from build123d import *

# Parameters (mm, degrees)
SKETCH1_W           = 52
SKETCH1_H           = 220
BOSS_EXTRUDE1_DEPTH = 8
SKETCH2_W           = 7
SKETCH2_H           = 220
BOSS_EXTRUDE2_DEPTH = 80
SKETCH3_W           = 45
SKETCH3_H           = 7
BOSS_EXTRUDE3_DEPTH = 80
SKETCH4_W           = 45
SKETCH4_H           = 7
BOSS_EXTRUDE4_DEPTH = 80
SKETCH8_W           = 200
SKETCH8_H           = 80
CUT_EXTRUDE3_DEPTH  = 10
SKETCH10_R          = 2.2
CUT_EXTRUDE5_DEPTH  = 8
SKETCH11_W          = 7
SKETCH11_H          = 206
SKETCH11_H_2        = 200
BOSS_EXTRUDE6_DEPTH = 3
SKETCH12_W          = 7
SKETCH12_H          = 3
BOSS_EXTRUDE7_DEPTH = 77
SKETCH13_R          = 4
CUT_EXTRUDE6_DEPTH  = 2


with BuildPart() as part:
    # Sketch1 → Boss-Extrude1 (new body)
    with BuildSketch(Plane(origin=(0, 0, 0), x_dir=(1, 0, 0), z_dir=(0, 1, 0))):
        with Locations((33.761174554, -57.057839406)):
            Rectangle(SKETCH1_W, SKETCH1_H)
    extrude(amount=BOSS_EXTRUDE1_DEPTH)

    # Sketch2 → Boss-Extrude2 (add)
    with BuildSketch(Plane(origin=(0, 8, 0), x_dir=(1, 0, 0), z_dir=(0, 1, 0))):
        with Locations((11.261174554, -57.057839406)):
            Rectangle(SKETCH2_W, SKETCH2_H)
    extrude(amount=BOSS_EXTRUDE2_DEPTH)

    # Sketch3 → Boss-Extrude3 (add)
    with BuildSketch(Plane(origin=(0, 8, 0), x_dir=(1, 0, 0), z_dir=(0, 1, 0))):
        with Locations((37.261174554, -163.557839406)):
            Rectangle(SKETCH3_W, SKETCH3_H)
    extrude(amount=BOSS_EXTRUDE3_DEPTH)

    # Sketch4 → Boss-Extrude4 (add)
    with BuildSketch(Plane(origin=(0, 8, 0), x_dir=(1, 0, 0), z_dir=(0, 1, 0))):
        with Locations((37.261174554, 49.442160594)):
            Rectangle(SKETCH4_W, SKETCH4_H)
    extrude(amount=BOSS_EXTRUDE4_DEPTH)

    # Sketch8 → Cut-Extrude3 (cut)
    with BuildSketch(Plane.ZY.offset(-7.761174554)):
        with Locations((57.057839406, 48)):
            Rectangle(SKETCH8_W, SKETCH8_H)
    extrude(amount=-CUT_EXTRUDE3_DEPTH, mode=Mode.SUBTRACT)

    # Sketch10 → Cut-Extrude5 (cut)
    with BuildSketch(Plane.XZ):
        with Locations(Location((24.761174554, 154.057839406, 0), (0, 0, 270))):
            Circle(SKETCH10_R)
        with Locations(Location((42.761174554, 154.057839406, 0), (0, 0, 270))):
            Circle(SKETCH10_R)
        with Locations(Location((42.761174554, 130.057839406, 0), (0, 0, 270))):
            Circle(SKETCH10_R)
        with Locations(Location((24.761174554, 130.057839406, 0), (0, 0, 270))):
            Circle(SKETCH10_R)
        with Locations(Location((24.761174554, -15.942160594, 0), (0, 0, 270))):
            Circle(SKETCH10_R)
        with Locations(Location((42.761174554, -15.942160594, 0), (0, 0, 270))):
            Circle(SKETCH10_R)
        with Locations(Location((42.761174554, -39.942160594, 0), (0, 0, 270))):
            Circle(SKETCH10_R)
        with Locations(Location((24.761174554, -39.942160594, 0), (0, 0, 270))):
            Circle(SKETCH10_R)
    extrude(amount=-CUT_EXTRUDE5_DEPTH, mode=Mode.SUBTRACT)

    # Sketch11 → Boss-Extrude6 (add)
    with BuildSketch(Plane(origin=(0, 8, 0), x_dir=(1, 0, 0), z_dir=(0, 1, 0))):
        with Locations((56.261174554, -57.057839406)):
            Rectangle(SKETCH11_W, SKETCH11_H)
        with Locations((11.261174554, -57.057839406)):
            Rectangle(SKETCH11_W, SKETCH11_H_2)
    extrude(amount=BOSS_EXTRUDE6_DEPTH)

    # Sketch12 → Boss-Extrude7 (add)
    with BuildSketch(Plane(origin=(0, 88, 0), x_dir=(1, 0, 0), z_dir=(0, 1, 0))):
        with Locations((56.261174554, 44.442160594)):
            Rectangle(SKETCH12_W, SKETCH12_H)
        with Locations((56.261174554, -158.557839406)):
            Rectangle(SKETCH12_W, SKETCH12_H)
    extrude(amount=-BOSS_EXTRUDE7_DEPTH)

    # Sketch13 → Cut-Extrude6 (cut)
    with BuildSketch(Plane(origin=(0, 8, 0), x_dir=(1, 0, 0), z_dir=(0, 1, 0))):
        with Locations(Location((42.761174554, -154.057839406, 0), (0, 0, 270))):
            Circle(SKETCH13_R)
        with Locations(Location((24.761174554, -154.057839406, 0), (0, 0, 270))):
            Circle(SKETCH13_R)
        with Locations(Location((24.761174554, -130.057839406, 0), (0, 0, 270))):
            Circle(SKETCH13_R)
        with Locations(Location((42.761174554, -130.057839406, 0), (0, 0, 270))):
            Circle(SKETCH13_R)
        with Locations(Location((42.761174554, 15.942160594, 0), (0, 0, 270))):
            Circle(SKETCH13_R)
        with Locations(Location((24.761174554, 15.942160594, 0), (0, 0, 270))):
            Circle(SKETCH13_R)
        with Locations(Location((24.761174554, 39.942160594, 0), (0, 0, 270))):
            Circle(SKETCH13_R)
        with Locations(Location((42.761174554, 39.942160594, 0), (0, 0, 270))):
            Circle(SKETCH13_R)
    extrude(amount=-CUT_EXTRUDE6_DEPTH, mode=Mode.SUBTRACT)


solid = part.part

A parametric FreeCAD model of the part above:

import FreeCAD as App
import Part
import Sketcher

V = App.Vector

doc = App.newDocument("Part")
body = doc.addObject("PartDesign::Body", "Body")

sketch1 = body.newObject("Sketcher::SketchObject", "Sketch")
sketch1.AttachmentSupport = (doc.getObject("XZ_Plane"), [""])
sketch1.MapMode = "FlatFace"
sketch1.addGeometry(Part.LineSegment(V(8, -53, 0), V(8, 167, 0)), False)
sketch1.addGeometry(Part.LineSegment(V(8, 167, 0), V(60, 167, 0)), False)
sketch1.addGeometry(Part.LineSegment(V(60, 167, 0), V(60, -53, 0)), False)
sketch1.addGeometry(Part.LineSegment(V(60, -53, 0), V(8, -53, 0)), False)
sketch1.addConstraint(Sketcher.Constraint("Coincident", 0, 2, 1, 1))
sketch1.addConstraint(Sketcher.Constraint("Coincident", 1, 2, 2, 1))
sketch1.addConstraint(Sketcher.Constraint("Coincident", 2, 2, 3, 1))
sketch1.addConstraint(Sketcher.Constraint("Coincident", 3, 2, 0, 1))
sketch1.addConstraint(Sketcher.Constraint("Vertical", 0))
sketch1.addConstraint(Sketcher.Constraint("Horizontal", 1))
sketch1.addConstraint(Sketcher.Constraint("Vertical", 2))
sketch1.addConstraint(Sketcher.Constraint("Horizontal", 3))
sketch1.addConstraint(Sketcher.Constraint("DistanceX", 1, 1, 1, 2, 52.0))
sketch1.addConstraint(Sketcher.Constraint("DistanceY", 0, 1, 0, 2, 220.0))
sketch1.addConstraint(Sketcher.Constraint("DistanceY", -1, 1, 0, 2, 167.057839))
sketch1.addConstraint(Sketcher.Constraint("DistanceX", -1, 1, 0, 2, 7.761175))
pad1 = body.newObject("PartDesign::Pad", "Pad")
pad1.Profile = sketch1
pad1.Length = 8
pad1.Reversed = True

sketch2 = body.newObject("Sketcher::SketchObject", "Sketch001")
sketch2.AttachmentSupport = (doc.getObject("XZ_Plane"), [""])
sketch2.MapMode = "FlatFace"
sketch2.AttachmentOffset = App.Placement(V(0, 0, -8), App.Rotation())
sketch2.addGeometry(Part.LineSegment(V(8, -53, 0), V(8, 167, 0)), False)
sketch2.addGeometry(Part.LineSegment(V(8, 167, 0), V(15, 167, 0)), False)
sketch2.addGeometry(Part.LineSegment(V(15, 167, 0), V(15, -53, 0)), False)
sketch2.addGeometry(Part.LineSegment(V(15, -53, 0), V(8, -53, 0)), False)
sketch2.addConstraint(Sketcher.Constraint("Coincident", 0, 2, 1, 1))
sketch2.addConstraint(Sketcher.Constraint("Coincident", 1, 2, 2, 1))
sketch2.addConstraint(Sketcher.Constraint("Coincident", 2, 2, 3, 1))
sketch2.addConstraint(Sketcher.Constraint("Coincident", 3, 2, 0, 1))
sketch2.addConstraint(Sketcher.Constraint("Vertical", 0))
sketch2.addConstraint(Sketcher.Constraint("Horizontal", 1))
sketch2.addConstraint(Sketcher.Constraint("Vertical", 2))
sketch2.addConstraint(Sketcher.Constraint("Horizontal", 3))
sketch2.addConstraint(Sketcher.Constraint("DistanceX", 1, 1, 1, 2, 7.0))
sketch2.addConstraint(Sketcher.Constraint("DistanceY", 0, 1, 0, 2, 220.0))
sketch2.addConstraint(Sketcher.Constraint("DistanceY", -1, 1, 0, 2, 167.057839))
sketch2.addConstraint(Sketcher.Constraint("DistanceX", -1, 1, 0, 2, 7.761175))
pad2 = body.newObject("PartDesign::Pad", "Pad001")
pad2.Profile = sketch2
pad2.Length = 80
pad2.Reversed = True

sketch3 = body.newObject("Sketcher::SketchObject", "Sketch002")
sketch3.AttachmentSupport = (doc.getObject("XZ_Plane"), [""])
sketch3.MapMode = "FlatFace"
sketch3.AttachmentOffset = App.Placement(V(0, 0, -8), App.Rotation())
sketch3.addGeometry(Part.LineSegment(V(15, 160, 0), V(15, 167, 0)), False)
sketch3.addGeometry(Part.LineSegment(V(15, 167, 0), V(60, 167, 0)), False)
sketch3.addGeometry(Part.LineSegment(V(60, 167, 0), V(60, 160, 0)), False)
sketch3.addGeometry(Part.LineSegment(V(60, 160, 0), V(15, 160, 0)), False)
sketch3.addConstraint(Sketcher.Constraint("Coincident", 0, 2, 1, 1))
sketch3.addConstraint(Sketcher.Constraint("Coincident", 1, 2, 2, 1))
sketch3.addConstraint(Sketcher.Constraint("Coincident", 2, 2, 3, 1))
sketch3.addConstraint(Sketcher.Constraint("Coincident", 3, 2, 0, 1))
sketch3.addConstraint(Sketcher.Constraint("Vertical", 0))
sketch3.addConstraint(Sketcher.Constraint("Horizontal", 1))
sketch3.addConstraint(Sketcher.Constraint("Vertical", 2))
sketch3.addConstraint(Sketcher.Constraint("Horizontal", 3))
sketch3.addConstraint(Sketcher.Constraint("DistanceX", 1, 1, 1, 2, 45.0))
sketch3.addConstraint(Sketcher.Constraint("DistanceY", 0, 1, 0, 2, 7.0))
sketch3.addConstraint(Sketcher.Constraint("DistanceY", -1, 1, 0, 2, 167.057839))
sketch3.addConstraint(Sketcher.Constraint("DistanceX", -1, 1, 0, 2, 14.761175))
pad3 = body.newObject("PartDesign::Pad", "Pad002")
pad3.Profile = sketch3
pad3.Length = 80
pad3.Reversed = True

sketch4 = body.newObject("Sketcher::SketchObject", "Sketch003")
sketch4.AttachmentSupport = (doc.getObject("XZ_Plane"), [""])
sketch4.MapMode = "FlatFace"
sketch4.AttachmentOffset = App.Placement(V(0, 0, -8), App.Rotation())
sketch4.addGeometry(Part.LineSegment(V(15, -53, 0), V(15, -46, 0)), False)
sketch4.addGeometry(Part.LineSegment(V(15, -46, 0), V(60, -46, 0)), False)
sketch4.addGeometry(Part.LineSegment(V(60, -46, 0), V(60, -53, 0)), False)
sketch4.addGeometry(Part.LineSegment(V(60, -53, 0), V(15, -53, 0)), False)
sketch4.addConstraint(Sketcher.Constraint("Coincident", 0, 2, 1, 1))
sketch4.addConstraint(Sketcher.Constraint("Coincident", 1, 2, 2, 1))
sketch4.addConstraint(Sketcher.Constraint("Coincident", 2, 2, 3, 1))
sketch4.addConstraint(Sketcher.Constraint("Coincident", 3, 2, 0, 1))
sketch4.addConstraint(Sketcher.Constraint("Vertical", 0))
sketch4.addConstraint(Sketcher.Constraint("Horizontal", 1))
sketch4.addConstraint(Sketcher.Constraint("Vertical", 2))
sketch4.addConstraint(Sketcher.Constraint("Horizontal", 3))
sketch4.addConstraint(Sketcher.Constraint("DistanceX", 1, 1, 1, 2, 45.0))
sketch4.addConstraint(Sketcher.Constraint("DistanceY", 0, 1, 0, 2, 7.0))
sketch4.addConstraint(Sketcher.Constraint("DistanceY", 0, 2, -1, 1, 45.942161))
sketch4.addConstraint(Sketcher.Constraint("DistanceX", -1, 1, 0, 2, 14.761175))
pad4 = body.newObject("PartDesign::Pad", "Pad003")
pad4.Profile = sketch4
pad4.Length = 80
pad4.Reversed = True

sketch5 = body.newObject("Sketcher::SketchObject", "Sketch004")
sketch5.AttachmentSupport = (doc.getObject("YZ_Plane"), [""])
sketch5.MapMode = "FlatFace"
sketch5.AttachmentOffset = App.Placement(V(0, 0, 7.761175), App.Rotation())
sketch5.addGeometry(Part.LineSegment(V(88, -43, 0), V(8, -43, 0)), False)
sketch5.addGeometry(Part.LineSegment(V(8, -43, 0), V(8, 157, 0)), False)
sketch5.addGeometry(Part.LineSegment(V(8, 157, 0), V(88, 157, 0)), False)
sketch5.addGeometry(Part.LineSegment(V(88, 157, 0), V(88, -43, 0)), False)
sketch5.addConstraint(Sketcher.Constraint("Coincident", 0, 2, 1, 1))
sketch5.addConstraint(Sketcher.Constraint("Coincident", 1, 2, 2, 1))
sketch5.addConstraint(Sketcher.Constraint("Coincident", 2, 2, 3, 1))
sketch5.addConstraint(Sketcher.Constraint("Coincident", 3, 2, 0, 1))
sketch5.addConstraint(Sketcher.Constraint("Horizontal", 0))
sketch5.addConstraint(Sketcher.Constraint("Vertical", 1))
sketch5.addConstraint(Sketcher.Constraint("Horizontal", 2))
sketch5.addConstraint(Sketcher.Constraint("Vertical", 3))
sketch5.addConstraint(Sketcher.Constraint("DistanceX", 0, 2, 0, 1, 80.0))
sketch5.addConstraint(Sketcher.Constraint("DistanceY", 1, 1, 1, 2, 200.0))
sketch5.addConstraint(Sketcher.Constraint("DistanceX", -1, 1, 0, 2, 8.0))
sketch5.addConstraint(Sketcher.Constraint("DistanceY", 0, 2, -1, 1, 42.942161))
pocket1 = body.newObject("PartDesign::Pocket", "Pocket")
pocket1.Profile = sketch5
pocket1.Length = 10
pocket1.Reversed = True

sketch6 = body.newObject("Sketcher::SketchObject", "Sketch005")
sketch6.AttachmentSupport = (doc.getObject("XZ_Plane"), [""])
sketch6.MapMode = "FlatFace"
sketch6.addGeometry(Part.Circle(V(24.8, 154.1, 0), V(0, 0, 1), 2.2), False)
sketch6.addGeometry(Part.Circle(V(42.8, 154.1, 0), V(0, 0, 1), 2.2), False)
sketch6.addGeometry(Part.Circle(V(42.8, 130.1, 0), V(0, 0, 1), 2.2), False)
sketch6.addGeometry(Part.Circle(V(24.8, 130.1, 0), V(0, 0, 1), 2.2), False)
sketch6.addGeometry(Part.Circle(V(24.8, -15.9, 0), V(0, 0, 1), 2.2), False)
sketch6.addGeometry(Part.Circle(V(42.8, -15.9, 0), V(0, 0, 1), 2.2), False)
sketch6.addGeometry(Part.Circle(V(42.8, -39.9, 0), V(0, 0, 1), 2.2), False)
sketch6.addGeometry(Part.Circle(V(24.8, -39.9, 0), V(0, 0, 1), 2.2), False)
sketch6.addConstraint(Sketcher.Constraint("Equal", 0, 1))
sketch6.addConstraint(Sketcher.Constraint("Equal", 1, 2))
sketch6.addConstraint(Sketcher.Constraint("Equal", 2, 3))
sketch6.addConstraint(Sketcher.Constraint("Equal", 3, 4))
sketch6.addConstraint(Sketcher.Constraint("Equal", 4, 5))
sketch6.addConstraint(Sketcher.Constraint("Equal", 5, 6))
sketch6.addConstraint(Sketcher.Constraint("Equal", 6, 7))
sketch6.addConstraint(Sketcher.Constraint("Horizontal", 0, 3, 1, 3))
sketch6.addConstraint(Sketcher.Constraint("Horizontal", 2, 3, 3, 3))
sketch6.addConstraint(Sketcher.Constraint("Horizontal", 4, 3, 5, 3))
sketch6.addConstraint(Sketcher.Constraint("Horizontal", 6, 3, 7, 3))
sketch6.addConstraint(Sketcher.Constraint("Vertical", 1, 3, 2, 3))
sketch6.addConstraint(Sketcher.Constraint("Vertical", 0, 3, 3, 3))
sketch6.addConstraint(Sketcher.Constraint("Vertical", 3, 3, 4, 3))
sketch6.addConstraint(Sketcher.Constraint("Vertical", 2, 3, 5, 3))
sketch6.addConstraint(Sketcher.Constraint("Vertical", 5, 3, 6, 3))
sketch6.addConstraint(Sketcher.Constraint("Vertical", 4, 3, 7, 3))
sketch6.addConstraint(Sketcher.Constraint("Diameter", 0, 4.4))
sketch6.addConstraint(Sketcher.Constraint("DistanceX", 0, 3, 1, 3, 18.0))
sketch6.addConstraint(Sketcher.Constraint("DistanceY", 2, 3, 1, 3, 24.0))
sketch6.addConstraint(Sketcher.Constraint("DistanceY", 4, 3, 3, 3, 146.0))
sketch6.addConstraint(Sketcher.Constraint("DistanceY", 6, 3, 5, 3, 24.0))
sketch6.addConstraint(Sketcher.Constraint("DistanceY", -1, 1, 0, 3, 154.057839))
sketch6.addConstraint(Sketcher.Constraint("DistanceX", -1, 1, 0, 3, 24.761175))
pocket2 = body.newObject("PartDesign::Pocket", "Pocket001")
pocket2.Profile = sketch6
pocket2.Length = 8

sketch7 = body.newObject("Sketcher::SketchObject", "Sketch006")
sketch7.AttachmentSupport = (doc.getObject("XZ_Plane"), [""])
sketch7.MapMode = "FlatFace"
sketch7.AttachmentOffset = App.Placement(V(0, 0, -8), App.Rotation())
sketch7.addGeometry(Part.LineSegment(V(53, -46, 0), V(53, 160, 0)), False)
sketch7.addGeometry(Part.LineSegment(V(53, 160, 0), V(60, 160, 0)), False)
sketch7.addGeometry(Part.LineSegment(V(60, 160, 0), V(60, -46, 0)), False)
sketch7.addGeometry(Part.LineSegment(V(60, -46, 0), V(53, -46, 0)), False)
sketch7.addGeometry(Part.LineSegment(V(8, -43, 0), V(8, 157, 0)), False)
sketch7.addGeometry(Part.LineSegment(V(8, 157, 0), V(15, 157, 0)), False)
sketch7.addGeometry(Part.LineSegment(V(15, 157, 0), V(15, -43, 0)), False)
sketch7.addGeometry(Part.LineSegment(V(15, -43, 0), V(8, -43, 0)), False)
sketch7.addConstraint(Sketcher.Constraint("Coincident", 0, 2, 1, 1))
sketch7.addConstraint(Sketcher.Constraint("Coincident", 1, 2, 2, 1))
sketch7.addConstraint(Sketcher.Constraint("Coincident", 2, 2, 3, 1))
sketch7.addConstraint(Sketcher.Constraint("Coincident", 3, 2, 0, 1))
sketch7.addConstraint(Sketcher.Constraint("Coincident", 4, 2, 5, 1))
sketch7.addConstraint(Sketcher.Constraint("Coincident", 5, 2, 6, 1))
sketch7.addConstraint(Sketcher.Constraint("Coincident", 6, 2, 7, 1))
sketch7.addConstraint(Sketcher.Constraint("Coincident", 7, 2, 4, 1))
sketch7.addConstraint(Sketcher.Constraint("Vertical", 0))
sketch7.addConstraint(Sketcher.Constraint("Horizontal", 1))
sketch7.addConstraint(Sketcher.Constraint("Vertical", 2))
sketch7.addConstraint(Sketcher.Constraint("Horizontal", 3))
sketch7.addConstraint(Sketcher.Constraint("Vertical", 4))
sketch7.addConstraint(Sketcher.Constraint("Horizontal", 5))
sketch7.addConstraint(Sketcher.Constraint("Vertical", 6))
sketch7.addConstraint(Sketcher.Constraint("Horizontal", 7))
sketch7.addConstraint(Sketcher.Constraint("Equal", 3, 5))
sketch7.addConstraint(Sketcher.Constraint("DistanceX", 1, 1, 1, 2, 7.0))
sketch7.addConstraint(Sketcher.Constraint("DistanceY", 0, 1, 0, 2, 206.0))
sketch7.addConstraint(Sketcher.Constraint("DistanceY", 4, 1, 4, 2, 200.0))
sketch7.addConstraint(Sketcher.Constraint("DistanceX", 4, 2, 0, 2, 45.0))
sketch7.addConstraint(Sketcher.Constraint("DistanceY", 4, 2, 0, 2, 3.0))
sketch7.addConstraint(Sketcher.Constraint("DistanceY", -1, 1, 0, 2, 160.057839))
sketch7.addConstraint(Sketcher.Constraint("DistanceX", -1, 1, 0, 2, 52.761175))
pad5 = body.newObject("PartDesign::Pad", "Pad004")
pad5.Profile = sketch7
pad5.Length = 3
pad5.Reversed = True

sketch8 = body.newObject("Sketcher::SketchObject", "Sketch007")
sketch8.AttachmentSupport = (doc.getObject("XZ_Plane"), [""])
sketch8.MapMode = "FlatFace"
sketch8.AttachmentOffset = App.Placement(V(0, 0, -88), App.Rotation())
sketch8.addGeometry(Part.LineSegment(V(52.8, -45.9, 0), V(52.8, -42.9, 0)), False)
sketch8.addGeometry(Part.LineSegment(V(52.8, -42.9, 0), V(59.8, -42.9, 0)), False)
sketch8.addGeometry(Part.LineSegment(V(59.8, -42.9, 0), V(59.8, -45.9, 0)), False)
sketch8.addGeometry(Part.LineSegment(V(59.8, -45.9, 0), V(52.8, -45.9, 0)), False)
sketch8.addGeometry(Part.LineSegment(V(52.8, 157.1, 0), V(52.8, 160.1, 0)), False)
sketch8.addGeometry(Part.LineSegment(V(52.8, 160.1, 0), V(59.8, 160.1, 0)), False)
sketch8.addGeometry(Part.LineSegment(V(59.8, 160.1, 0), V(59.8, 157.1, 0)), False)
sketch8.addGeometry(Part.LineSegment(V(59.8, 157.1, 0), V(52.8, 157.1, 0)), False)
sketch8.addConstraint(Sketcher.Constraint("Coincident", 0, 2, 1, 1))
sketch8.addConstraint(Sketcher.Constraint("Coincident", 1, 2, 2, 1))
sketch8.addConstraint(Sketcher.Constraint("Coincident", 2, 2, 3, 1))
sketch8.addConstraint(Sketcher.Constraint("Coincident", 3, 2, 0, 1))
sketch8.addConstraint(Sketcher.Constraint("Coincident", 4, 2, 5, 1))
sketch8.addConstraint(Sketcher.Constraint("Coincident", 5, 2, 6, 1))
sketch8.addConstraint(Sketcher.Constraint("Coincident", 6, 2, 7, 1))
sketch8.addConstraint(Sketcher.Constraint("Coincident", 7, 2, 4, 1))
sketch8.addConstraint(Sketcher.Constraint("Vertical", 0))
sketch8.addConstraint(Sketcher.Constraint("Horizontal", 1))
sketch8.addConstraint(Sketcher.Constraint("Vertical", 2))
sketch8.addConstraint(Sketcher.Constraint("Horizontal", 3))
sketch8.addConstraint(Sketcher.Constraint("Vertical", 4))
sketch8.addConstraint(Sketcher.Constraint("Horizontal", 5))
sketch8.addConstraint(Sketcher.Constraint("Vertical", 6))
sketch8.addConstraint(Sketcher.Constraint("Horizontal", 7))
sketch8.addConstraint(Sketcher.Constraint("Vertical", 3, 2, 4, 2))
sketch8.addConstraint(Sketcher.Constraint("Vertical", 2, 2, 5, 2))
sketch8.addConstraint(Sketcher.Constraint("Equal", 2, 4))
sketch8.addConstraint(Sketcher.Constraint("DistanceX", 1, 1, 1, 2, 7.0))
sketch8.addConstraint(Sketcher.Constraint("DistanceY", 0, 1, 0, 2, 3.0))
sketch8.addConstraint(Sketcher.Constraint("DistanceY", 0, 2, 4, 2, 203.0))
sketch8.addConstraint(Sketcher.Constraint("DistanceY", 0, 2, -1, 1, 42.942161))
sketch8.addConstraint(Sketcher.Constraint("DistanceX", -1, 1, 0, 2, 52.761175))
pad6 = body.newObject("PartDesign::Pad", "Pad005")
pad6.Profile = sketch8
pad6.Length = 77

sketch9 = body.newObject("Sketcher::SketchObject", "Sketch008")
sketch9.AttachmentSupport = (doc.getObject("XZ_Plane"), [""])
sketch9.MapMode = "FlatFace"
sketch9.AttachmentOffset = App.Placement(V(0, 0, -8), App.Rotation())
sketch9.addGeometry(Part.Circle(V(42.8, 154.1, 0), V(0, 0, 1), 4), False)
sketch9.addGeometry(Part.Circle(V(24.8, 154.1, 0), V(0, 0, 1), 4), False)
sketch9.addGeometry(Part.Circle(V(24.8, 130.1, 0), V(0, 0, 1), 4), False)
sketch9.addGeometry(Part.Circle(V(42.8, 130.1, 0), V(0, 0, 1), 4), False)
sketch9.addGeometry(Part.Circle(V(42.8, -15.9, 0), V(0, 0, 1), 4), False)
sketch9.addGeometry(Part.Circle(V(24.8, -15.9, 0), V(0, 0, 1), 4), False)
sketch9.addGeometry(Part.Circle(V(24.8, -39.9, 0), V(0, 0, 1), 4), False)
sketch9.addGeometry(Part.Circle(V(42.8, -39.9, 0), V(0, 0, 1), 4), False)
sketch9.addConstraint(Sketcher.Constraint("Equal", 0, 1))
sketch9.addConstraint(Sketcher.Constraint("Equal", 1, 2))
sketch9.addConstraint(Sketcher.Constraint("Equal", 2, 3))
sketch9.addConstraint(Sketcher.Constraint("Equal", 3, 4))
sketch9.addConstraint(Sketcher.Constraint("Equal", 4, 5))
sketch9.addConstraint(Sketcher.Constraint("Equal", 5, 6))
sketch9.addConstraint(Sketcher.Constraint("Equal", 6, 7))
sketch9.addConstraint(Sketcher.Constraint("Horizontal", 0, 3, 1, 3))
sketch9.addConstraint(Sketcher.Constraint("Horizontal", 2, 3, 3, 3))
sketch9.addConstraint(Sketcher.Constraint("Horizontal", 4, 3, 5, 3))
sketch9.addConstraint(Sketcher.Constraint("Horizontal", 6, 3, 7, 3))
sketch9.addConstraint(Sketcher.Constraint("Vertical", 1, 3, 2, 3))
sketch9.addConstraint(Sketcher.Constraint("Vertical", 0, 3, 3, 3))
sketch9.addConstraint(Sketcher.Constraint("Vertical", 3, 3, 4, 3))
sketch9.addConstraint(Sketcher.Constraint("Vertical", 2, 3, 5, 3))
sketch9.addConstraint(Sketcher.Constraint("Vertical", 5, 3, 6, 3))
sketch9.addConstraint(Sketcher.Constraint("Vertical", 4, 3, 7, 3))
sketch9.addConstraint(Sketcher.Constraint("Diameter", 0, 8.0))
sketch9.addConstraint(Sketcher.Constraint("DistanceX", 1, 3, 0, 3, 18.0))
sketch9.addConstraint(Sketcher.Constraint("DistanceY", 2, 3, 1, 3, 24.0))
sketch9.addConstraint(Sketcher.Constraint("DistanceY", 4, 3, 3, 3, 146.0))
sketch9.addConstraint(Sketcher.Constraint("DistanceY", 6, 3, 5, 3, 24.0))
sketch9.addConstraint(Sketcher.Constraint("DistanceY", -1, 1, 0, 3, 154.057839))
sketch9.addConstraint(Sketcher.Constraint("DistanceX", -1, 1, 0, 3, 42.761175))
pocket3 = body.newObject("PartDesign::Pocket", "Pocket002")
pocket3.Profile = sketch9
pocket3.Length = 2
pocket3.Reversed = True

doc.recompute()
